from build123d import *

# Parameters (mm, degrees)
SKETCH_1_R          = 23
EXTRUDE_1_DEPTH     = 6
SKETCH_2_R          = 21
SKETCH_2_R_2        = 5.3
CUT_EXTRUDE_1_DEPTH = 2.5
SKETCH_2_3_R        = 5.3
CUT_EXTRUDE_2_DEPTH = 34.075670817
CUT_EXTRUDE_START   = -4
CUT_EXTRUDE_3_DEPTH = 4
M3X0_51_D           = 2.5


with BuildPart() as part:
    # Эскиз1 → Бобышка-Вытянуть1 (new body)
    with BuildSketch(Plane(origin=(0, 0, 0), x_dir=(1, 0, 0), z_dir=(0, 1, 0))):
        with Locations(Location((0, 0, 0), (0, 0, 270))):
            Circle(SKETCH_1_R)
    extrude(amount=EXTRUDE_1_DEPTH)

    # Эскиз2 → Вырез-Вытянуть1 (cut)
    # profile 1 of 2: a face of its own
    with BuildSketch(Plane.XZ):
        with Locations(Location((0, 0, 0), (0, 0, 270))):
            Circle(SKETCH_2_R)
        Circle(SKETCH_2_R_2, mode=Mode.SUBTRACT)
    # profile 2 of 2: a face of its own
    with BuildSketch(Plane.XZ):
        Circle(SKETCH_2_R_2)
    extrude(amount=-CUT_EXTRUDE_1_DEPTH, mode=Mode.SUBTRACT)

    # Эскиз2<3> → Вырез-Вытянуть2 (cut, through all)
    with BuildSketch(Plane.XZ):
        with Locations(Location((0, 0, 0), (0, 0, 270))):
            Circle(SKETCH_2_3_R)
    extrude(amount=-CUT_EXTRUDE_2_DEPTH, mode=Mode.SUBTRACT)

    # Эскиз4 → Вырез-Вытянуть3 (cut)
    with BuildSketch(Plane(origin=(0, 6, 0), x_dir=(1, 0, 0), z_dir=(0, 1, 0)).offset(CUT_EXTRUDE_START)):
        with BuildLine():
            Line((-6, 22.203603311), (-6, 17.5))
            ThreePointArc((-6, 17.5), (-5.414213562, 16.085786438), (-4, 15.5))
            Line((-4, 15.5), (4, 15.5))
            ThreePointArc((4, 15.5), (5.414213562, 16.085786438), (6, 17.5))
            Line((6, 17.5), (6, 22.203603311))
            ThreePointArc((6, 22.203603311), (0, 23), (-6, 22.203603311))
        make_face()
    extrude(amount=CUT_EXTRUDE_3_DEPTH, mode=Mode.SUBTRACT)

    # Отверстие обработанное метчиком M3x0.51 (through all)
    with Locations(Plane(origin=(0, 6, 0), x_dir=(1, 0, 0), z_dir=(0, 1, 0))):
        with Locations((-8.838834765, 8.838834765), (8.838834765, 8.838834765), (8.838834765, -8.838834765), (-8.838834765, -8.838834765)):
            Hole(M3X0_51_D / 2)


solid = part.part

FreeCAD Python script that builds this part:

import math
import FreeCAD as App
import Part
import Sketcher

doc = App.newDocument("Part")
body = doc.addObject("PartDesign::Body", "Body")

# Sketch on XZ plane
sketch1 = body.newObject("Sketcher::SketchObject", "Sketch")
sketch1.AttachmentSupport = (doc.getObject("XZ_Plane"), [""])
sketch1.MapMode = "FlatFace"
sketch1.addGeometry(Part.Circle(App.Vector(0, 0, 0), App.Vector(0, 0, 1), 23), False)
sketch1.addConstraint(Sketcher.Constraint("Coincident", 0, 3, -1, 1))
sketch1.addConstraint(Sketcher.Constraint("Diameter", 0, 46.0))
pad1 = body.newObject("PartDesign::Pad", "Pad")
pad1.Profile = sketch1
pad1.Length = 6
pad1.Reversed = True

# Sketch on XZ plane
sketch2 = body.newObject("Sketcher::SketchObject", "Sketch001")
sketch2.AttachmentSupport = (doc.getObject("XZ_Plane"), [""])
sketch2.MapMode = "FlatFace"
sketch2.addGeometry(Part.Circle(App.Vector(0, 0, 0), App.Vector(0, 0, 1), 21), False)
sketch2.addConstraint(Sketcher.Constraint("Coincident", 0, 3, -1, 1))
sketch2.addConstraint(Sketcher.Constraint("Diameter", 0, 42.0))
pocket1 = body.newObject("PartDesign::Pocket", "Pocket")
pocket1.Profile = sketch2
pocket1.Length = 2.5

# Sketch on XZ plane
sketch3 = body.newObject("Sketcher::SketchObject", "Sketch002")
sketch3.AttachmentSupport = (doc.getObject("XZ_Plane"), [""])
sketch3.MapMode = "FlatFace"
sketch3.addGeometry(Part.Circle(App.Vector(0, 0, 0), App.Vector(0, 0, 1), 5), False)
sketch3.addConstraint(Sketcher.Constraint("Coincident", 0, 3, -1, 1))
sketch3.addConstraint(Sketcher.Constraint("Diameter", 0, 10.6))
pocket2 = body.newObject("PartDesign::Pocket", "Pocket001")
pocket2.Profile = sketch3
pocket2.Type = "ThroughAll"

# Sketch on XZ plane
sketch4 = body.newObject("Sketcher::SketchObject", "Sketch003")
sketch4.AttachmentSupport = (doc.getObject("XZ_Plane"), [""])
sketch4.MapMode = "FlatFace"
sketch4.AttachmentOffset = App.Placement(App.Vector(0, 0, -2), App.Rotation())
sketch4.addGeometry(Part.LineSegment(App.Vector(-6, -22.2, 0), App.Vector(-6, -17.5, 0)), False)
sketch4.addGeometry(Part.ArcOfCircle(Part.Circle(App.Vector(-4, -17.5, 0), App.Vector(0, 0, 1), 2), math.radians(90), math.radians(180)), False)
sketch4.addGeometry(Part.LineSegment(App.Vector(-4, -15.5, 0), App.Vector(4, -15.5, 0)), False)
sketch4.addGeometry(Part.ArcOfCircle(Part.Circle(App.Vector(4, -17.5, 0), App.Vector(0, 0, 1), 2), math.radians(0), math.radians(90)), False)
sketch4.addGeometry(Part.LineSegment(App.Vector(6, -17.5, 0), App.Vector(6, -22.2, 0)), False)
sketch4.addGeometry(Part.ArcOfCircle(Part.Circle(App.Vector(0, 0, 0), App.Vector(0, 0, 1), 23), math.radians(-105), math.radians(-75)), False)
sketch4.addConstraint(Sketcher.Constraint("Tangent", 0, 2, 1, 2))
sketch4.addConstraint(Sketcher.Constraint("Tangent", 1, 1, 2, 1))
sketch4.addConstraint(Sketcher.Constraint("Tangent", 2, 2, 3, 2))
sketch4.addConstraint(Sketcher.Constraint("Tangent", 3, 1, 4, 1))
sketch4.addConstraint(Sketcher.Constraint("Coincident", 4, 2, 5, 2))
sketch4.addConstraint(Sketcher.Constraint("Coincident", 5, 1, 0, 1))
sketch4.addConstraint(Sketcher.Constraint("Vertical", 0))
sketch4.addConstraint(Sketcher.Constraint("Horizontal", 2))
sketch4.addConstraint(Sketcher.Constraint("Vertical", 4))
sketch4.addConstraint(Sketcher.Constraint("Coincident", 5, 3, -1, 1))
sketch4.addConstraint(Sketcher.Constraint("Equal", 1, 3))
sketch4.addConstraint(Sketcher.Constraint("Horizontal", 4, 2, 5, 1))
sketch4.addConstraint(Sketcher.Constraint("Radius", 1, 2.0))
sketch4.addConstraint(Sketcher.Constraint("Radius", 5, 23.0))
sketch4.addConstraint(Sketcher.Constraint("DistanceX", 2, 1, 2, 2, 8.0))
sketch4.addConstraint(Sketcher.Constraint("DistanceY", 1, 3, -1, 1, 17.5))
pocket3 = body.newObject("PartDesign::Pocket", "Pocket002")
pocket3.Profile = sketch4
pocket3.Length = 4

# Sketch on XZ plane
sketch5 = body.newObject("Sketcher::SketchObject", "Sketch004")
sketch5.AttachmentSupport = (doc.getObject("XZ_Plane"), [""])
sketch5.MapMode = "FlatFace"
sketch5.AttachmentOffset = App.Placement(App.Vector(0, 0, -6), App.Rotation())
sketch5.addGeometry(Part.Circle(App.Vector(-8.8, -8.8, 0), App.Vector(0, 0, 1), 1.2), False)
sketch5.addGeometry(Part.Circle(App.Vector(8.8, -8.8, 0), App.Vector(0, 0, 1), 1.2), False)
sketch5.addGeometry(Part.Circle(App.Vector(8.8, 8.8, 0), App.Vector(0, 0, 1), 1.2), False)
sketch5.addGeometry(Part.Circle(App.Vector(-8.8, 8.8, 0), App.Vector(0, 0, 1), 1.2), False)
sketch5.addConstraint(Sketcher.Constraint("Equal", 0, 1))
sketch5.addConstraint(Sketcher.Constraint("Equal", 1, 2))
sketch5.addConstraint(Sketcher.Constraint("Equal", 2, 3))
sketch5.addConstraint(Sketcher.Constraint("Symmetric", 0, 3, 2, 3, -1, 1))
sketch5.addConstraint(Sketcher.Constraint("Symmetric", 1, 3, 3, 3, -1, 1))
sketch5.addConstraint(Sketcher.Constraint("Symmetric", 0, 3, 1, 3, -2))
sketch5.addConstraint(Sketcher.Constraint("Diameter", 0, 2.5))
sketch5.addConstraint(Sketcher.Constraint("DistanceX", 0, 3, 1, 3, 17.67767))
sketch5.addConstraint(Sketcher.Constraint("DistanceY", 1, 3, 2, 3, 17.67767))
doc.recompute()
hole = body.newObject("PartDesign::Hole", "Hole")
hole.Profile = sketch5
hole.ThreadType = "None"
hole.Diameter = 2.5
hole.DepthType = "ThroughAll"
hole.Reversed = True

doc.recompute()
